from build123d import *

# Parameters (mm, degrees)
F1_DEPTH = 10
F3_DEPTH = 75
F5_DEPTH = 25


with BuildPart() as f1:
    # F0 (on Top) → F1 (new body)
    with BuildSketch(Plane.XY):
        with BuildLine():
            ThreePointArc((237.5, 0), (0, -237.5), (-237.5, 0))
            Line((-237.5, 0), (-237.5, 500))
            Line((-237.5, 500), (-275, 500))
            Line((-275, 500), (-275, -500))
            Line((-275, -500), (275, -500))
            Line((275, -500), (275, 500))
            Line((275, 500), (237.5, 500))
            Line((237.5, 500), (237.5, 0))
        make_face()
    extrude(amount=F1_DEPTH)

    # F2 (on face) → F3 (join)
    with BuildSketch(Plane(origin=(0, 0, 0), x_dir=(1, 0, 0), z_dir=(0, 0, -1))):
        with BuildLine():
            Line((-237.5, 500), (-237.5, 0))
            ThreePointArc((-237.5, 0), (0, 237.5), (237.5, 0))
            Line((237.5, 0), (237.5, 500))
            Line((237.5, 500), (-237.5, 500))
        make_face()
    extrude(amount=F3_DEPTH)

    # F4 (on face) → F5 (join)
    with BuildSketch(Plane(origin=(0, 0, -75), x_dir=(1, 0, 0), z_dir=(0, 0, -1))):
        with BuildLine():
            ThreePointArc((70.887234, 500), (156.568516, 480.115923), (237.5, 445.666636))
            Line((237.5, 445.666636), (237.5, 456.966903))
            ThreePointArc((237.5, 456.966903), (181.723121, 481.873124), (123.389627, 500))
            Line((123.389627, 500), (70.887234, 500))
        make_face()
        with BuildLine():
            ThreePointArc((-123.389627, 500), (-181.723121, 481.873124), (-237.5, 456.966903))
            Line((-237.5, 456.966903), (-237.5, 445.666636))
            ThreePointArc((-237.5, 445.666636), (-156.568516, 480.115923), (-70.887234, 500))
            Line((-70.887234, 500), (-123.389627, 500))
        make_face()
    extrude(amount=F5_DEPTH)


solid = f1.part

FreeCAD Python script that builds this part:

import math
import FreeCAD as App
import Part
import Sketcher
Q = App.Units.Quantity

doc = App.newDocument("Part")
body = doc.addObject("PartDesign::Body", "Body")

# Sketch on XY plane
sketch1 = doc.addObject("Sketcher::SketchObject", "Sketch")
body.addObject(sketch1)
sketch1.AttachmentSupport = (doc.XY_Plane, [""])
sketch1.MapMode = "FlatFace"
sketch1.addGeometry([
    Part.ArcOfCircle(Part.Circle(App.Vector(0, 0, 0), App.Vector(0, 0, 1), 237.5), math.radians(180), math.radians(360)),  # 0
    Part.LineSegment(App.Vector(-237.5, 0, 0), App.Vector(-237.5, 500, 0)),  # 1
    Part.LineSegment(App.Vector(-237.5, 500, 0), App.Vector(-275, 500, 0)),  # 2
    Part.LineSegment(App.Vector(-275, 500, 0), App.Vector(-275, -500, 0)),  # 3
    Part.LineSegment(App.Vector(-275, -500, 0), App.Vector(275, -500, 0)),  # 4
    Part.LineSegment(App.Vector(275, -500, 0), App.Vector(275, 500, 0)),  # 5
    Part.LineSegment(App.Vector(275, 500, 0), App.Vector(237.5, 500, 0)),  # 6
    Part.LineSegment(App.Vector(237.5, 500, 0), App.Vector(237.5, 0, 0)),  # 7
], False)
sketch1.addConstraint([
    Sketcher.Constraint("Tangent", 0, 1, 1, 1),
    Sketcher.Constraint("Coincident", 1, 2, 2, 1),
    Sketcher.Constraint("Coincident", 2, 2, 3, 1),
    Sketcher.Constraint("Coincident", 3, 2, 4, 1),
    Sketcher.Constraint("Coincident", 4, 2, 5, 1),
    Sketcher.Constraint("Coincident", 5, 2, 6, 1),
    Sketcher.Constraint("Coincident", 6, 2, 7, 1),
    Sketcher.Constraint("Tangent", 7, 2, 0, 2),
    Sketcher.Constraint("Vertical", 1),
    Sketcher.Constraint("Horizontal", 2),
    Sketcher.Constraint("Vertical", 3),
    Sketcher.Constraint("Horizontal", 4),
    Sketcher.Constraint("Vertical", 5),
    Sketcher.Constraint("Horizontal", 6),
    Sketcher.Constraint("Vertical", 7),
    Sketcher.Constraint("Coincident", 0, 3, -1, 1),
    Sketcher.Constraint("Symmetric", 2, 2, 4, 2, -1, 1),
    Sketcher.Constraint("Horizontal", 2, 2, 5, 2),
    Sketcher.Constraint("Radius", 0, Q("237.5 mm")),
    Sketcher.Constraint("DistanceX", 4, 1, 4, 2, Q("550 mm")),
    Sketcher.Constraint("DistanceY", 1, 1, 1, 2, Q("500 mm")),
])
pad1 = doc.addObject("PartDesign::Pad", "Pad")
body.addObject(pad1)
pad1.Profile = sketch1
pad1.Length = 10

# Sketch on XY plane
sketch2 = doc.addObject("Sketcher::SketchObject", "Sketch001")
body.addObject(sketch2)
sketch2.AttachmentSupport = (doc.XY_Plane, [""])
sketch2.MapMode = "FlatFace"
sketch2.addGeometry([
    Part.LineSegment(App.Vector(-237.5, -500, 0), App.Vector(-237.5, 0, 0)),
    Part.ArcOfCircle(Part.Circle(App.Vector(0, 0, 0), App.Vector(0, 0, 1), 237.5), math.radians(180), math.radians(360)),
    Part.LineSegment(App.Vector(237.5, 0, 0), App.Vector(237.5, -500, 0)),
    Part.LineSegment(App.Vector(237.5, -500, 0), App.Vector(-237.5, -500, 0)),
], False)
sketch2.addConstraint([
    Sketcher.Constraint("Tangent", 0, 2, 1, 1),
    Sketcher.Constraint("Tangent", 1, 2, 2, 1),
    Sketcher.Constraint("Coincident", 2, 2, 3, 1),
    Sketcher.Constraint("Coincident", 3, 2, 0, 1),
    Sketcher.Constraint("Vertical", 0),
    Sketcher.Constraint("Vertical", 2),
    Sketcher.Constraint("Horizontal", 3),
    Sketcher.Constraint("Coincident", 1, 3, -1, 1),
    Sketcher.Constraint("Radius", 1, Q("237.5 mm")),
    Sketcher.Constraint("DistanceY", 0, 1, 0, 2, Q("500 mm")),
])
pad2 = doc.addObject("PartDesign::Pad", "Pad001")
body.addObject(pad2)
pad2.Profile = sketch2
pad2.Length = 75
pad2.Reversed = True

# Sketch on XY plane
sketch3 = doc.addObject("Sketcher::SketchObject", "Sketch002")
body.addObject(sketch3)
sketch3.AttachmentSupport = (doc.XY_Plane, [""])
sketch3.MapMode = "FlatFace"
sketch3.AttachmentOffset = App.Placement(App.Vector(0, 0, -75), App.Rotation())
sketch3.addGeometry([
    Part.ArcOfCircle(Part.Circle(App.Vector(-0.000008, 0.00003, 0), App.Vector(0, 0, 1), 505.000031), math.radians(-81.930698), math.radians(-61.946422)),  # 0
    Part.LineSegment(App.Vector(237.5, -445.666636, 0), App.Vector(237.5, -456.966903, 0)),  # 1
    Part.ArcOfCircle(Part.Circle(App.Vector(0.000006, -0.000012, 0), App.Vector(0, 0, 1), 514.999987), math.radians(-76.137568), math.radians(-62.537688)),  # 2
    Part.LineSegment(App.Vector(123.389627, -500, 0), App.Vector(70.887234, -500, 0)),  # 3
    Part.ArcOfCircle(Part.Circle(App.Vector(-0.000006, -0.000012, 0), App.Vector(0, 0, 1), 514.999987), math.radians(-117.462312), math.radians(-103.862432)),  # 4
    Part.LineSegment(App.Vector(-237.5, -456.966903, 0), App.Vector(-237.5, -445.666636, 0)),  # 5
    Part.ArcOfCircle(Part.Circle(App.Vector(0.000008, 0.00003, 0), App.Vector(0, 0, 1), 505.000031), math.radians(-118.053578), math.radians(-98.069302)),  # 6
    Part.LineSegment(App.Vector(-70.887234, -500, 0), App.Vector(-123.389627, -500, 0)),  # 7
], False)
sketch3.addConstraint([
    Sketcher.Constraint("Coincident", 0, 2, 1, 1),
    Sketcher.Constraint("Coincident", 1, 2, 2, 2),
    Sketcher.Constraint("Coincident", 2, 1, 3, 1),
    Sketcher.Constraint("Coincident", 3, 2, 0, 1),
    Sketcher.Constraint("Coincident", 4, 1, 5, 1),
    Sketcher.Constraint("Coincident", 5, 2, 6, 1),
    Sketcher.Constraint("Coincident", 6, 2, 7, 1),
    Sketcher.Constraint("Coincident", 7, 2, 4, 2),
    Sketcher.Constraint("Vertical", 1),
    Sketcher.Constraint("Horizontal", 3),
    Sketcher.Constraint("Vertical", 5),
    Sketcher.Constraint("Horizontal", 7),
    Sketcher.Constraint("Equal", 2, 4),
    Sketcher.Constraint("Equal", 0, 6),
    Sketcher.Constraint("Symmetric", 2, 3, 4, 3, -2),
    Sketcher.Constraint("Symmetric", 0, 3, 6, 3, -2),
    Sketcher.Constraint("Horizontal", 3, 2, 6, 2),
    Sketcher.Constraint("Equal", 1, 5),
    Sketcher.Constraint("DistanceY", 2, 1, -1, 1, Q("500 mm")),
    Sketcher.Constraint("DistanceX", 5, 2, 0, 2, Q("475 mm")),
    Sketcher.Constraint("Radius", 0, Q("505.000031 mm")),
    Sketcher.Constraint("Radius", 2, Q("514.999987 mm")),
    Sketcher.Constraint("DistanceX", 3, 2, 3, 1, Q("52.502393 mm")),
    Sketcher.Constraint("DistanceY", 1, 2, 1, 1, Q("11.300267 mm")),
    Sketcher.Constraint("DistanceY", 1, 2, 2, 3, Q("456.966891 mm")),
    Sketcher.Constraint("DistanceX", 6, 3, 1, 2, Q("237.499992 mm")),
])
pad3 = doc.addObject("PartDesign::Pad", "Pad002")
body.addObject(pad3)
pad3.Profile = sketch3
pad3.Length = 25
pad3.Reversed = True

doc.recompute()
